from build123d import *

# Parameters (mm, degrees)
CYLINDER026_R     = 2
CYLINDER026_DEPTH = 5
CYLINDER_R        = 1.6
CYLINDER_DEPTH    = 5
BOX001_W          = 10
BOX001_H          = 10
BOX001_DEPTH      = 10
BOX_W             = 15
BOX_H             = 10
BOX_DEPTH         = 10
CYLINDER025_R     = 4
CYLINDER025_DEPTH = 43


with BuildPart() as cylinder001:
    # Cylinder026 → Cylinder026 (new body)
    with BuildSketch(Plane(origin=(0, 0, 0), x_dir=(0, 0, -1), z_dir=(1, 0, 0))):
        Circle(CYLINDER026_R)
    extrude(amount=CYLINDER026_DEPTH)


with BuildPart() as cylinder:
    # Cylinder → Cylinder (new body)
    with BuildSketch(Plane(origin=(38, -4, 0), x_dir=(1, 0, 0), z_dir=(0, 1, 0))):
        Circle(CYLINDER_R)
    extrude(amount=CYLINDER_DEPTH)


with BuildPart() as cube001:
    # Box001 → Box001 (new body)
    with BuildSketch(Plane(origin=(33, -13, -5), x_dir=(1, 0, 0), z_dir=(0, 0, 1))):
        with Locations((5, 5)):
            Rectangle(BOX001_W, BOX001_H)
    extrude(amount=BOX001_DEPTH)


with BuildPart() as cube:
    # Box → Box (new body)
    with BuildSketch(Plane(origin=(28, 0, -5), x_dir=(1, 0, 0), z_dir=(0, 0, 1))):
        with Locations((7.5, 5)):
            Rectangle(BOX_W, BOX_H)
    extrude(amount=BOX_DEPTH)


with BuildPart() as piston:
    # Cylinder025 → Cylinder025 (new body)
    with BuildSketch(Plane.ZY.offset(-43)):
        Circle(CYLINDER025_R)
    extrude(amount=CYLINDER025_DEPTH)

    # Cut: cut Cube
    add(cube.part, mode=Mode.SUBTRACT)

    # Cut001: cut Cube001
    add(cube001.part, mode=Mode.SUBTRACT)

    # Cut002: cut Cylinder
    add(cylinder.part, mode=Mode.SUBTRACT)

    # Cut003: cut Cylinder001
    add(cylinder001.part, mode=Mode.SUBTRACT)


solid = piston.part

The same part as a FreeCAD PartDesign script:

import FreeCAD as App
import Part
import Sketcher

V = App.Vector

doc = App.newDocument("Part")
body = doc.addObject("PartDesign::Body", "Body")

sketch1 = body.newObject("Sketcher::SketchObject", "Sketch")
sketch1.AttachmentSupport = (doc.getObject("YZ_Plane"), [""])
sketch1.MapMode = "FlatFace"
sketch1.addGeometry(Part.Circle(V(0, 0, 0), V(0, 0, 1), 2), False)
sketch1.addConstraint([
    Sketcher.Constraint("Coincident", 0, 3, -1, 1),
    Sketcher.Constraint("Diameter", 0, 4.0),
])
pad1 = body.newObject("PartDesign::Pad", "Pad")
pad1.Profile = sketch1
pad1.Length = 5
body2 = doc.addObject("PartDesign::Body", "Body001")

sketch2 = body2.newObject("Sketcher::SketchObject", "Sketch001")
sketch2.AttachmentSupport = (doc.getObject("XZ_Plane001"), [""])
sketch2.MapMode = "FlatFace"
sketch2.AttachmentOffset = App.Placement(V(0, 0, 4), App.Rotation())
sketch2.addGeometry(Part.Circle(V(38, 0, 0), V(0, 0, 1), 1.6), False)
sketch2.addConstraint([
    Sketcher.Constraint("PointOnObject", 0, 3, -1),
    Sketcher.Constraint("Diameter", 0, 3.2),
    Sketcher.Constraint("DistanceX", -1, 1, 0, 3, 38.0),
])
pad2 = body2.newObject("PartDesign::Pad", "Pad001")
pad2.Profile = sketch2
pad2.Length = 5
pad2.Reversed = True
body3 = doc.addObject("PartDesign::Body", "Body002")

sketch3 = body3.newObject("Sketcher::SketchObject", "Sketch002")
sketch3.AttachmentSupport = (doc.getObject("XY_Plane002"), [""])
sketch3.MapMode = "FlatFace"
sketch3.AttachmentOffset = App.Placement(V(0, 0, -5), App.Rotation())
sketch3.addGeometry([
    Part.LineSegment(V(33, -3, 0), V(33, -13, 0)),
    Part.LineSegment(V(33, -13, 0), V(43, -13, 0)),
    Part.LineSegment(V(43, -13, 0), V(43, -3, 0)),
    Part.LineSegment(V(43, -3, 0), V(33, -3, 0)),
], False)
sketch3.addConstraint([
    Sketcher.Constraint("Coincident", 0, 2, 1, 1),
    Sketcher.Constraint("Coincident", 1, 2, 2, 1),
    Sketcher.Constraint("Coincident", 2, 2, 3, 1),
    Sketcher.Constraint("Coincident", 3, 2, 0, 1),
    Sketcher.Constraint("Vertical", 0),
    Sketcher.Constraint("Horizontal", 1),
    Sketcher.Constraint("Vertical", 2),
    Sketcher.Constraint("Horizontal", 3),
    Sketcher.Constraint("Equal", 3, 0),
    Sketcher.Constraint("DistanceX", 1, 1, 1, 2, 10.0),
    Sketcher.Constraint("DistanceX", -1, 1, 0, 2, 33.0),
    Sketcher.Constraint("DistanceY", 0, 2, -1, 1, 13.0),
])
pad3 = body3.newObject("PartDesign::Pad", "Pad002")
pad3.Profile = sketch3
pad3.Length = 10
body4 = doc.addObject("PartDesign::Body", "Body003")

sketch4 = body4.newObject("Sketcher::SketchObject", "Sketch003")
sketch4.AttachmentSupport = (doc.getObject("XY_Plane003"), [""])
sketch4.MapMode = "FlatFace"
sketch4.AttachmentOffset = App.Placement(V(0, 0, -5), App.Rotation())
sketch4.addGeometry([
    Part.LineSegment(V(28, 10, 0), V(28, 0, 0)),
    Part.LineSegment(V(28, 0, 0), V(43, 0, 0)),
    Part.LineSegment(V(43, 0, 0), V(43, 10, 0)),
    Part.LineSegment(V(43, 10, 0), V(28, 10, 0)),
], False)
sketch4.addConstraint([
    Sketcher.Constraint("Coincident", 0, 2, 1, 1),
    Sketcher.Constraint("Coincident", 1, 2, 2, 1),
    Sketcher.Constraint("Coincident", 2, 2, 3, 1),
    Sketcher.Constraint("Coincident", 3, 2, 0, 1),
    Sketcher.Constraint("Vertical", 0),
    Sketcher.Constraint("Horizontal", 1),
    Sketcher.Constraint("Vertical", 2),
    Sketcher.Constraint("Horizontal", 3),
    Sketcher.Constraint("PointOnObject", 0, 2, -1),
    Sketcher.Constraint("DistanceX", 1, 1, 1, 2, 15.0),
    Sketcher.Constraint("DistanceY", 0, 2, 0, 1, 10.0),
    Sketcher.Constraint("DistanceX", -1, 1, 0, 2, 28.0),
])
pad4 = body4.newObject("PartDesign::Pad", "Pad003")
pad4.Profile = sketch4
pad4.Length = 10
body5 = doc.addObject("PartDesign::Body", "Body004")

sketch5 = body5.newObject("Sketcher::SketchObject", "Sketch004")
sketch5.AttachmentSupport = (doc.getObject("YZ_Plane004"), [""])
sketch5.MapMode = "FlatFace"
sketch5.AttachmentOffset = App.Placement(V(0, 0, 43), App.Rotation())
sketch5.addGeometry(Part.Circle(V(0, 0, 0), V(0, 0, 1), 4), False)
sketch5.addConstraint([
    Sketcher.Constraint("Coincident", 0, 3, -1, 1),
    Sketcher.Constraint("Diameter", 0, 8.0),
])
pad5 = body5.newObject("PartDesign::Pad", "Pad004")
pad5.Profile = sketch5
pad5.Length = 43
pad5.Reversed = True
doc.recompute()

boolean = body5.newObject("PartDesign::Boolean", "Boolean")
boolean.Type = "Cut"
boolean.addObjects([body4])
doc.recompute()

boolean2 = body5.newObject("PartDesign::Boolean", "Boolean001")
boolean2.Type = "Cut"
boolean2.addObjects([body3])
doc.recompute()

boolean3 = body5.newObject("PartDesign::Boolean", "Boolean002")
boolean3.Type = "Cut"
boolean3.addObjects([body2])
doc.recompute()

boolean4 = body5.newObject("PartDesign::Boolean", "Boolean003")
boolean4.Type = "Cut"
boolean4.addObjects([body])

doc.recompute()
